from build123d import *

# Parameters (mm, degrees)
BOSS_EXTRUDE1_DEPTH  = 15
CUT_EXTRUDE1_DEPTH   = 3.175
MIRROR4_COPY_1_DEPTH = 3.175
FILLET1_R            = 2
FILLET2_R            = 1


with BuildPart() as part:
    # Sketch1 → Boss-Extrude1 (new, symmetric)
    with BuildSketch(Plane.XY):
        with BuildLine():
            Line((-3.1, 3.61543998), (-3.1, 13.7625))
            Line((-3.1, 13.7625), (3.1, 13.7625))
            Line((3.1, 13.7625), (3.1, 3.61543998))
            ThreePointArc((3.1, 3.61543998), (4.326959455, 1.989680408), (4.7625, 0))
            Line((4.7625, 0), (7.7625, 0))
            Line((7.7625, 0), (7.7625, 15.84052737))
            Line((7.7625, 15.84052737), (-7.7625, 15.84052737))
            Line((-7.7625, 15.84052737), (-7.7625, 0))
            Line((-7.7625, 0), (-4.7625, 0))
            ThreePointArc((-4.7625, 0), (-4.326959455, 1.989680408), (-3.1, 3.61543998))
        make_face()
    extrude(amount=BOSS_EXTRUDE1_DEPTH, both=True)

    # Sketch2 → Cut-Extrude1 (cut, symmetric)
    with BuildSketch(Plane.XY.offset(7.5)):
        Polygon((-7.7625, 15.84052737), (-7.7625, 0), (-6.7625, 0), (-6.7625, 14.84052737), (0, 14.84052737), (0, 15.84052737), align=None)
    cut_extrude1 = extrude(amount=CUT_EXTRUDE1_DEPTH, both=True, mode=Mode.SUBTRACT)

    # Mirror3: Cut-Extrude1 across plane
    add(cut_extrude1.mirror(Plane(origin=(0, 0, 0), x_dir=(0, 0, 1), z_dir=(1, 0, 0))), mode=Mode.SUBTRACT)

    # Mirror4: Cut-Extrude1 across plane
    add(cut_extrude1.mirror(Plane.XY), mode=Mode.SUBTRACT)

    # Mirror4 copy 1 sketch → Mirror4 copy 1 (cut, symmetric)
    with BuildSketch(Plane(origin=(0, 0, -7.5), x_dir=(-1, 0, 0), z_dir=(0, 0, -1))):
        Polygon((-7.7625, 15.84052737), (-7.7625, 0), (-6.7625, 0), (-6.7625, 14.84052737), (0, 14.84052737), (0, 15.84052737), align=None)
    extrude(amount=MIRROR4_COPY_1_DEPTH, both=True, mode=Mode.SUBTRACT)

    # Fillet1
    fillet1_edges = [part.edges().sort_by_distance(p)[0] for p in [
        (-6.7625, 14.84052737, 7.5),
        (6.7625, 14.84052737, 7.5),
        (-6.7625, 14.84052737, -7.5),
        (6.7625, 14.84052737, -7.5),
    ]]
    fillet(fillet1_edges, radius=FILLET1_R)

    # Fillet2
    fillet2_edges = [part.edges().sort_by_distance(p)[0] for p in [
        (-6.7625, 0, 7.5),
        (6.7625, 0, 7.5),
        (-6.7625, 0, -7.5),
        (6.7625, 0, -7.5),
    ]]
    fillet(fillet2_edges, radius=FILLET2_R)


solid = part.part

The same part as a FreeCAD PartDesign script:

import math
import FreeCAD as App
import Part
import Sketcher
from FreeCAD import Vector
Q = App.Units.Quantity


def edges_at(feature, points):
    """Names of the edges that pass closest to the given points."""
    edges = feature.Shape.Edges
    near = lambda p: min(range(len(edges)), key=lambda i: edges[i].distToShape(Part.Vertex(*p))[0])
    return sorted({f"Edge{near(p) + 1}" for p in points})


def add_polygon(sketch, points):
    """Adds a closed chain of lines whose ends are joined by coincident constraints."""
    first, n = sketch.GeometryCount, len(points)
    for a, b in zip(points, points[1:] + points[:1]):
        sketch.addGeometry(Part.LineSegment(App.Vector(*a, 0), App.Vector(*b, 0)), False)
    for i in range(n):
        sketch.addConstraint(Sketcher.Constraint("Coincident", first + i, 2, first + (i + 1) % n, 1))

doc = App.newDocument("Part")
body = doc.addObject("PartDesign::Body", "Body")

sketch1 = doc.addObject("Sketcher::SketchObject", "Sketch")
body.addObject(sketch1)
sketch1.AttachmentSupport = (doc.XY_Plane, [""])
sketch1.MapMode = "FlatFace"
sketch1.addGeometry([
    Part.LineSegment(Vector(-3.1, 3.6, 0), Vector(-3.1, 13.8, 0)),
    Part.LineSegment(Vector(-3.1, 13.8, 0), Vector(3.1, 13.8, 0)),
    Part.LineSegment(Vector(3.1, 13.8, 0), Vector(3.1, 3.6, 0)),
    Part.ArcOfCircle(Part.Circle(Vector(0, 0, 0), Vector(0, 0, 1), 4.8), math.radians(0), math.radians(49)),
    Part.LineSegment(Vector(4.8, 0, 0), Vector(7.8, 0, 0)),
    Part.LineSegment(Vector(7.8, 0, 0), Vector(7.8, 15.8, 0)),
    Part.LineSegment(Vector(7.8, 15.8, 0), Vector(-7.8, 15.8, 0)),
    Part.LineSegment(Vector(-7.8, 15.8, 0), Vector(-7.8, 0, 0)),
    Part.LineSegment(Vector(-7.8, 0, 0), Vector(-4.8, 0, 0)),
    Part.ArcOfCircle(Part.Circle(Vector(0, 0, 0), Vector(0, 0, 1), 4.8), math.radians(131), math.radians(180)),
], False)
sketch1.addConstraint([
    Sketcher.Constraint("Coincident", 0, 2, 1, 1),
    Sketcher.Constraint("Coincident", 1, 2, 2, 1),
    Sketcher.Constraint("Coincident", 2, 2, 3, 2),
    Sketcher.Constraint("Coincident", 3, 1, 4, 1),
    Sketcher.Constraint("Coincident", 4, 2, 5, 1),
    Sketcher.Constraint("Coincident", 5, 2, 6, 1),
    Sketcher.Constraint("Coincident", 6, 2, 7, 1),
    Sketcher.Constraint("Coincident", 7, 2, 8, 1),
    Sketcher.Constraint("Coincident", 8, 2, 9, 2),
    Sketcher.Constraint("Coincident", 9, 1, 0, 1),
    Sketcher.Constraint("Vertical", 0),
    Sketcher.Constraint("Horizontal", 1),
    Sketcher.Constraint("Vertical", 2),
    Sketcher.Constraint("Horizontal", 4),
    Sketcher.Constraint("Vertical", 5),
    Sketcher.Constraint("Horizontal", 6),
    Sketcher.Constraint("Vertical", 7),
    Sketcher.Constraint("Horizontal", 8),
    Sketcher.Constraint("Coincident", 3, 3, -1, 1),
    Sketcher.Constraint("Coincident", 9, 3, -1, 1),
    Sketcher.Constraint("Equal", 3, 9),
    Sketcher.Constraint("Symmetric", 4, 2, 7, 2, -1, 1),
    Sketcher.Constraint("PointOnObject", 3, 1, -1),
    Sketcher.Constraint("Horizontal", 2, 2, 9, 1),
    Sketcher.Constraint("DistanceX", 4, 1, 4, 2, Q("3 mm")),
    Sketcher.Constraint("DistanceX", 1, 1, 1, 2, Q("6.2 mm")),
    Sketcher.Constraint("Radius", 3, Q("4.7625 mm")),
    Sketcher.Constraint("DistanceY", 0, 1, 0, 2, Q("10.14706 mm")),
    Sketcher.Constraint("DistanceY", 5, 1, 5, 2, Q("15.840527 mm")),
])
pad1 = doc.addObject("PartDesign::Pad", "Pad")
body.addObject(pad1)
pad1.Profile = sketch1
pad1.Length = 30
pad1.Midplane = True

sketch2 = doc.addObject("Sketcher::SketchObject", "Sketch001")
body.addObject(sketch2)
sketch2.AttachmentSupport = (doc.XY_Plane, [""])
sketch2.MapMode = "FlatFace"
sketch2.AttachmentOffset = App.Placement(Vector(0, 0, 7.5), App.Rotation())
add_polygon(sketch2, [(-7.8, 15.8), (-7.8, 0), (-6.8, 0), (-6.8, 14.8), (0, 14.8), (0, 15.8)])
sketch2.addConstraint([
    Sketcher.Constraint("Vertical", 0),
    Sketcher.Constraint("Horizontal", 1),
    Sketcher.Constraint("Vertical", 2),
    Sketcher.Constraint("Horizontal", 3),
    Sketcher.Constraint("Vertical", 4),
    Sketcher.Constraint("Horizontal", 5),
    Sketcher.Constraint("PointOnObject", 0, 2, -1),
    Sketcher.Constraint("PointOnObject", 3, 2, -2),
    Sketcher.Constraint("Equal", 1, 4),
    Sketcher.Constraint("DistanceX", 1, 1, 1, 2, Q("1 mm")),
    Sketcher.Constraint("DistanceX", 3, 1, 3, 2, Q("6.7625 mm")),
    Sketcher.Constraint("DistanceY", 0, 2, 0, 1, Q("15.840527 mm")),
])
pocket1 = doc.addObject("PartDesign::Pocket", "Pocket")
body.addObject(pocket1)
pocket1.Profile = sketch2
pocket1.Length = 6.35
pocket1.Midplane = True
doc.recompute()

mirrored = doc.addObject("PartDesign::Mirrored", "Mirrored")
body.addObject(mirrored)
mirrored.Originals = [pocket1]
mirrored.MirrorPlane = (doc.YZ_Plane, [""])
body.Tip = mirrored
doc.recompute()

mirrored2 = doc.addObject("PartDesign::Mirrored", "Mirrored001")
body.addObject(mirrored2)
mirrored2.Originals = [pocket1]
mirrored2.MirrorPlane = (doc.XY_Plane, [""])
body.Tip = mirrored2

sketch3 = doc.addObject("Sketcher::SketchObject", "Sketch002")
body.addObject(sketch3)
sketch3.AttachmentSupport = (doc.XY_Plane, [""])
sketch3.MapMode = "FlatFace"
sketch3.AttachmentOffset = App.Placement(Vector(0, 0, -7.5), App.Rotation())
add_polygon(sketch3, [(7.8, 15.8), (7.8, 0), (6.8, 0), (6.8, 14.8), (0, 14.8), (0, 15.8)])
sketch3.addConstraint([
    Sketcher.Constraint("Vertical", 0),
    Sketcher.Constraint("Horizontal", 1),
    Sketcher.Constraint("Vertical", 2),
    Sketcher.Constraint("Horizontal", 3),
    Sketcher.Constraint("Vertical", 4),
    Sketcher.Constraint("Horizontal", 5),
    Sketcher.Constraint("PointOnObject", 0, 2, -1),
    Sketcher.Constraint("PointOnObject", 3, 2, -2),
    Sketcher.Constraint("Equal", 1, 4),
    Sketcher.Constraint("DistanceX", 1, 2, 1, 1, Q("1 mm")),
    Sketcher.Constraint("DistanceX", 3, 2, 3, 1, Q("6.7625 mm")),
    Sketcher.Constraint("DistanceY", 0, 2, 0, 1, Q("15.840527 mm")),
])
pocket2 = doc.addObject("PartDesign::Pocket", "Pocket001")
body.addObject(pocket2)
pocket2.Profile = sketch3
pocket2.Length = 6.35
pocket2.Midplane = True
doc.recompute()

fillet = doc.addObject("PartDesign::Fillet", "Fillet")
body.addObject(fillet)
fillet.Base = (pocket2, edges_at(pocket2, [
    (-6.763, 14.841, 7.5),
    (6.763, 14.841, 7.5),
    (-6.763, 14.841, -7.5),
    (6.763, 14.841, -7.5),
]))
fillet.Radius = 2
doc.recompute()

fillet2 = doc.addObject("PartDesign::Fillet", "Fillet001")
body.addObject(fillet2)
fillet2.Base = (fillet, edges_at(fillet, [
    (-6.763, 0, 7.5),
    (6.763, 0, 7.5),
    (-6.763, 0, -7.5),
    (6.763, 0, -7.5),
]))
fillet2.Radius = 1

doc.recompute()
